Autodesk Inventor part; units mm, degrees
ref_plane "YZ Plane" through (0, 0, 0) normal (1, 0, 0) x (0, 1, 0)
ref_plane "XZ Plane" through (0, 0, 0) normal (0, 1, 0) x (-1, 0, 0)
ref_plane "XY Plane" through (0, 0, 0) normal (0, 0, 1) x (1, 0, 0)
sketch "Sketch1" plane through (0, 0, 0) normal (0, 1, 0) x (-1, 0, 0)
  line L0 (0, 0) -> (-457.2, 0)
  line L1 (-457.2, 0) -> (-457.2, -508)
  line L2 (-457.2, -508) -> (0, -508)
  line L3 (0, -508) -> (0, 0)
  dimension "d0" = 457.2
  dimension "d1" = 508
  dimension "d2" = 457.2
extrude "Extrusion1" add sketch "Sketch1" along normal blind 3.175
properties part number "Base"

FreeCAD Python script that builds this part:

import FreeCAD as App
import Part
import Sketcher
Q = App.Units.Quantity

doc = App.newDocument("Part")
params = doc.addObject("Spreadsheet::Sheet", "Params")
for row, (alias, value) in enumerate([
    ("sketch1_width", "18 in"),
    ("sketch1_height", "20 in"),
    ("pad1_length", "0.125 in"),
], start=1):
    params.set(f"A{row}", alias)
    params.set(f"B{row}", "=" + value)
    params.setAlias(f"B{row}", alias)

body = doc.addObject("PartDesign::Body", "Body")

# Sketch on XZ plane
sketch1 = body.newObject("Sketcher::SketchObject", "Sketch")
sketch1.AttachmentSupport = (doc.getObject("XZ_Plane"), [""])
sketch1.MapMode = "FlatFace"
sketch1.addGeometry([
    Part.LineSegment(App.Vector(0, -508, 0), App.Vector(0, 0, 0)),
    Part.LineSegment(App.Vector(0, 0, 0), App.Vector(457, 0, 0)),
    Part.LineSegment(App.Vector(457, 0, 0), App.Vector(457, -508, 0)),
    Part.LineSegment(App.Vector(457, -508, 0), App.Vector(0, -508, 0)),
], False)
sketch1.addConstraint([
    Sketcher.Constraint("Coincident", 0, 2, 1, 1),
    Sketcher.Constraint("Coincident", 1, 2, 2, 1),
    Sketcher.Constraint("Coincident", 2, 2, 3, 1),
    Sketcher.Constraint("Coincident", 3, 2, 0, 1),
    Sketcher.Constraint("Vertical", 0),
    Sketcher.Constraint("Horizontal", 1),
    Sketcher.Constraint("Vertical", 2),
    Sketcher.Constraint("Horizontal", 3),
    Sketcher.Constraint("Coincident", 0, 2, -1, 1),
    Sketcher.Constraint("DistanceX", 1, 1, 1, 2, Q("18 in")),
    Sketcher.Constraint("DistanceY", 0, 1, 0, 2, Q("20 in")),
])
sketch1.setExpression("Constraints[9]", "Params.sketch1_width")
sketch1.setExpression("Constraints[10]", "Params.sketch1_height")
pad1 = body.newObject("PartDesign::Pad", "Pad")
pad1.Profile = sketch1
pad1.setExpression("Length", "Params.pad1_length")
pad1.Reversed = True

doc.recompute()
